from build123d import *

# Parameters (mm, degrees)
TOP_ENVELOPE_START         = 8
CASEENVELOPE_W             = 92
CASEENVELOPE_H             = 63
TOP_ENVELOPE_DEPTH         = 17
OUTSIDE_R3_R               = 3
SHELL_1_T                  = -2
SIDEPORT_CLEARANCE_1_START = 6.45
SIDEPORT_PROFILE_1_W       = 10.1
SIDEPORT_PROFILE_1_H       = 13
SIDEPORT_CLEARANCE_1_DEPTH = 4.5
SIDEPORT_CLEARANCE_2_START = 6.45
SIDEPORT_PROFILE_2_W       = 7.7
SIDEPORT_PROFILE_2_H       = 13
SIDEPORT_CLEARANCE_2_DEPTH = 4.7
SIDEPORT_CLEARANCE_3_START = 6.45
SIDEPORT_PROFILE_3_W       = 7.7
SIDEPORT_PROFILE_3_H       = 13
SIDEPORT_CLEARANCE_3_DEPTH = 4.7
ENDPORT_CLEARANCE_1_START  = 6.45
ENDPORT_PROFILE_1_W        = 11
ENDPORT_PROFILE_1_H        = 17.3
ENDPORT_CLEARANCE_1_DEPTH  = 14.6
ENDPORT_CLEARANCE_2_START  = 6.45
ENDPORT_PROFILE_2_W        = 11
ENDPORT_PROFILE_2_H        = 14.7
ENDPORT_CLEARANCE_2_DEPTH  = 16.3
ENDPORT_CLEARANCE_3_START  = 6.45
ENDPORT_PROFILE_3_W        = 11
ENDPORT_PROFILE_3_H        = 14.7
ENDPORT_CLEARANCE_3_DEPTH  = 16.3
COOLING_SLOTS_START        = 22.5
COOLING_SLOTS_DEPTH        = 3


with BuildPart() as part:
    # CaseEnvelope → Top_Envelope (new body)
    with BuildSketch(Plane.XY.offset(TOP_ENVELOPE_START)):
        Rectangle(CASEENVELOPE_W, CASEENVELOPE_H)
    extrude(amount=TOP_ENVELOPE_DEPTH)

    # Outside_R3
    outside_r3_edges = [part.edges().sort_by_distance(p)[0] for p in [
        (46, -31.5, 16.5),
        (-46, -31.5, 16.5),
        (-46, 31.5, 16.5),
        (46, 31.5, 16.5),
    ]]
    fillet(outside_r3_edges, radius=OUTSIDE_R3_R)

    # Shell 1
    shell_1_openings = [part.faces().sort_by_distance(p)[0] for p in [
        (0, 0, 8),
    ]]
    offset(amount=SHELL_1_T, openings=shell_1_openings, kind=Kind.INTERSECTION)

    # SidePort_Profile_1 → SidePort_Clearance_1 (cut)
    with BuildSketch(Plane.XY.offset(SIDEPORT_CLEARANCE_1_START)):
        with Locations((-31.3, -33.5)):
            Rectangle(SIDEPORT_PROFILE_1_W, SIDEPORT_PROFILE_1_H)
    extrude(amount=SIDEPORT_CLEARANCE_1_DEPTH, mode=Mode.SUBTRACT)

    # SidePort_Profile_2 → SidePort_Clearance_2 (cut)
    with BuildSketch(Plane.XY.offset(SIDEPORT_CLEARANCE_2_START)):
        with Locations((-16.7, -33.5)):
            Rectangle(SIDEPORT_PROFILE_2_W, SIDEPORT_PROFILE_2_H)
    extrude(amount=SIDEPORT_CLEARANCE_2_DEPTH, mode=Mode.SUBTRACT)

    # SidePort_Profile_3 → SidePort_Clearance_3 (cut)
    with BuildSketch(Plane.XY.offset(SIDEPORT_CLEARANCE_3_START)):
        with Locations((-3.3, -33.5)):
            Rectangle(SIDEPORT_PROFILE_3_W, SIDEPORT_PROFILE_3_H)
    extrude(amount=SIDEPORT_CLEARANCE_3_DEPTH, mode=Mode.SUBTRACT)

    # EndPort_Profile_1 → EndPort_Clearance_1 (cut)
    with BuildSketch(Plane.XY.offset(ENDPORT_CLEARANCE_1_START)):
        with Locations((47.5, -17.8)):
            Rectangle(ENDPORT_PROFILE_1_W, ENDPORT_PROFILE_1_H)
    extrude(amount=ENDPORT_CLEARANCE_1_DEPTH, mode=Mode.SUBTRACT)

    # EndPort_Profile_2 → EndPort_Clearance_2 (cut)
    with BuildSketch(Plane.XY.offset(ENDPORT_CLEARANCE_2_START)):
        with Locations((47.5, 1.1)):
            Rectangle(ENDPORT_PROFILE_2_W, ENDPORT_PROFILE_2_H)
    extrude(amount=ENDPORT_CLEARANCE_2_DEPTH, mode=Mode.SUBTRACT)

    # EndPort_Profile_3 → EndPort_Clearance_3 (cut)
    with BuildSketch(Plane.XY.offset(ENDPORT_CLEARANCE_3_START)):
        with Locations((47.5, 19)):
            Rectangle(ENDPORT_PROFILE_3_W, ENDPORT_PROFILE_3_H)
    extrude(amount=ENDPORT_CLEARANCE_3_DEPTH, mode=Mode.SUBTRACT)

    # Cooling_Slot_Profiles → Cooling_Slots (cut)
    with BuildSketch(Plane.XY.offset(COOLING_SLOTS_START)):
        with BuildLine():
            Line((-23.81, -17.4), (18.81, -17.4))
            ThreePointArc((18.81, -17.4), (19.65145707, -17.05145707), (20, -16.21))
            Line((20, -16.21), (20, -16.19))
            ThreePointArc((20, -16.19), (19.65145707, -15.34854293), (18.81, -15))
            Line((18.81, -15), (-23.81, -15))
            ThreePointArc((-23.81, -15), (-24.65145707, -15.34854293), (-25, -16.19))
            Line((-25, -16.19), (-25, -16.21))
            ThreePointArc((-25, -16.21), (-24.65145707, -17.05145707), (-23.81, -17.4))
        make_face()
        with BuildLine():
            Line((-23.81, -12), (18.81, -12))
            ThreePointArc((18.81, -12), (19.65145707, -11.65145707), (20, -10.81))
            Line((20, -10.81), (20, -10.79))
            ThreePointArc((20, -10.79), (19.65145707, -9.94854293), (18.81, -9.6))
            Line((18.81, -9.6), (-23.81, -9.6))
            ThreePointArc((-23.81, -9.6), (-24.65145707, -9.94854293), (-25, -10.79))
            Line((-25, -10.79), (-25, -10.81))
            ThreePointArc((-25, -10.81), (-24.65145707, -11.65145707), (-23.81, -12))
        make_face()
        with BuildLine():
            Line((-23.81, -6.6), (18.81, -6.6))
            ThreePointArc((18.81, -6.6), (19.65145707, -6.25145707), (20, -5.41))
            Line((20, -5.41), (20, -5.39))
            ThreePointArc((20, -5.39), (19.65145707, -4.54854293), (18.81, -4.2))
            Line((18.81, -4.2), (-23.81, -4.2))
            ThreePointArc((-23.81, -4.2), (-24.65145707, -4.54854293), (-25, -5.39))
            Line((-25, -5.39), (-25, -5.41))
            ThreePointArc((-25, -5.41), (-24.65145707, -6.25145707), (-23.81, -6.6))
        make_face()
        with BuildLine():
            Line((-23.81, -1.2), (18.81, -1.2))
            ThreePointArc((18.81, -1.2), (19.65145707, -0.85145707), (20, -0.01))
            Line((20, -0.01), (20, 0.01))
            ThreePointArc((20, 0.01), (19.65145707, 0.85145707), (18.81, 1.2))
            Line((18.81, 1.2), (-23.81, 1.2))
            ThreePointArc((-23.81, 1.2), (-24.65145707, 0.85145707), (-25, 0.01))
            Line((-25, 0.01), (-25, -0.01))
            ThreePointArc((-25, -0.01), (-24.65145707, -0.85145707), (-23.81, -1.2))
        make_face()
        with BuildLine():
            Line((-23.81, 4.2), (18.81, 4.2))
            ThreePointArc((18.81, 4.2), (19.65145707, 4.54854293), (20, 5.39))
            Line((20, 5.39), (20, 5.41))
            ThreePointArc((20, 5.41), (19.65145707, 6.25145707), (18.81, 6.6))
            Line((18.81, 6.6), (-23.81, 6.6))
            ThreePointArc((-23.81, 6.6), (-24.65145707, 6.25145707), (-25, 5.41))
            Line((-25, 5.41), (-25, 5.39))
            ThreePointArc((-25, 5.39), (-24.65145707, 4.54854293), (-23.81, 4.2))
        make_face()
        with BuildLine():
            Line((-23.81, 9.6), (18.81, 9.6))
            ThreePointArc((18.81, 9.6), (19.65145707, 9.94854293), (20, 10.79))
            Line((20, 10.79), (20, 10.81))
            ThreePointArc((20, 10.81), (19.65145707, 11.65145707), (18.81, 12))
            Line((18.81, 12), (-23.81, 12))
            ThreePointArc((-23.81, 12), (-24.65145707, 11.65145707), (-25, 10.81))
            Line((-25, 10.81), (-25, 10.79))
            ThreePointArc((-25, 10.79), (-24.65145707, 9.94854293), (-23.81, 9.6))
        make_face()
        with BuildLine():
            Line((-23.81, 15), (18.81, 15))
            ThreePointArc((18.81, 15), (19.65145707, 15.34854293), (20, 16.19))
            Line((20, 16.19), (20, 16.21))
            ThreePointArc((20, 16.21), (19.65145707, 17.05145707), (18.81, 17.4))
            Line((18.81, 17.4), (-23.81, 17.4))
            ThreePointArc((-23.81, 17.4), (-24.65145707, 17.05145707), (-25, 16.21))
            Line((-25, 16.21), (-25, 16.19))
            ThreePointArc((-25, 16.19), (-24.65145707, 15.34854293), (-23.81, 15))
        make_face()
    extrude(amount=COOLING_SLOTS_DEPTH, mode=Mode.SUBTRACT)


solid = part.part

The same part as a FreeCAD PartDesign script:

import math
import FreeCAD as App
import Part
import Sketcher
from FreeCAD import Vector


def edges_at(feature, points):
    """Names of the edges that pass closest to the given points."""
    edges = feature.Shape.Edges
    near = lambda p: min(range(len(edges)), key=lambda i: edges[i].distToShape(Part.Vertex(*p))[0])
    return sorted({f"Edge{near(p) + 1}" for p in points})


def faces_at(feature, points):
    """Names of the faces that lie closest to the given points."""
    faces = feature.Shape.Faces
    near = lambda p: min(range(len(faces)), key=lambda i: faces[i].distToShape(Part.Vertex(*p))[0])
    return sorted({f"Face{near(p) + 1}" for p in points})

doc = App.newDocument("Part")
body = doc.addObject("PartDesign::Body", "Body")

# Sketch on XY plane
sketch1 = doc.addObject("Sketcher::SketchObject", "Sketch")
body.addObject(sketch1)
sketch1.AttachmentSupport = (doc.XY_Plane, [""])
sketch1.MapMode = "FlatFace"
sketch1.AttachmentOffset = App.Placement(Vector(0, 0, 8), App.Rotation())
sketch1.addGeometry(Part.LineSegment(Vector(-46, 32, 0), Vector(-46, -32, 0)), False)
sketch1.addGeometry(Part.LineSegment(Vector(-46, -32, 0), Vector(46, -32, 0)), False)
sketch1.addGeometry(Part.LineSegment(Vector(46, -32, 0), Vector(46, 32, 0)), False)
sketch1.addGeometry(Part.LineSegment(Vector(46, 32, 0), Vector(-46, 32, 0)), False)
sketch1.addConstraint(Sketcher.Constraint("Coincident", 0, 2, 1, 1))
sketch1.addConstraint(Sketcher.Constraint("Coincident", 1, 2, 2, 1))
sketch1.addConstraint(Sketcher.Constraint("Coincident", 2, 2, 3, 1))
sketch1.addConstraint(Sketcher.Constraint("Coincident", 3, 2, 0, 1))
sketch1.addConstraint(Sketcher.Constraint("Vertical", 0))
sketch1.addConstraint(Sketcher.Constraint("Horizontal", 1))
sketch1.addConstraint(Sketcher.Constraint("Vertical", 2))
sketch1.addConstraint(Sketcher.Constraint("Horizontal", 3))
sketch1.addConstraint(Sketcher.Constraint("Symmetric", 0, 2, 2, 2, -1, 1))
sketch1.addConstraint(Sketcher.Constraint("DistanceX", 1, 1, 1, 2, 92.0))
sketch1.addConstraint(Sketcher.Constraint("DistanceY", 0, 2, 0, 1, 63.0))
pad1 = doc.addObject("PartDesign::Pad", "Pad")
body.addObject(pad1)
pad1.Profile = sketch1
pad1.Length = 17
doc.recompute()

fillet = doc.addObject("PartDesign::Fillet", "Fillet")
body.addObject(fillet)
fillet.Base = (pad1, edges_at(pad1, [
    (46, -31.5, 16.5),
    (-46, -31.5, 16.5),
    (-46, 31.5, 16.5),
    (46, 31.5, 16.5),
]))
fillet.Radius = 3
doc.recompute()

thickness = doc.addObject("PartDesign::Thickness", "Thickness")
body.addObject(thickness)
thickness.Base = (fillet, faces_at(fillet, [(0, 0, 8)]))
thickness.Value = 2
thickness.Reversed = True
thickness.Join = "Intersection"

# Sketch on XY plane
sketch2 = doc.addObject("Sketcher::SketchObject", "Sketch001")
body.addObject(sketch2)
sketch2.AttachmentSupport = (doc.XY_Plane, [""])
sketch2.MapMode = "FlatFace"
sketch2.AttachmentOffset = App.Placement(Vector(0, 0, 6.45), App.Rotation())
sketch2.addGeometry(Part.LineSegment(Vector(-36, -27, 0), Vector(-36, -40, 0)), False)
sketch2.addGeometry(Part.LineSegment(Vector(-36, -40, 0), Vector(-26, -40, 0)), False)
sketch2.addGeometry(Part.LineSegment(Vector(-26, -40, 0), Vector(-26, -27, 0)), False)
sketch2.addGeometry(Part.LineSegment(Vector(-26, -27, 0), Vector(-36, -27, 0)), False)
sketch2.addConstraint(Sketcher.Constraint("Coincident", 0, 2, 1, 1))
sketch2.addConstraint(Sketcher.Constraint("Coincident", 1, 2, 2, 1))
sketch2.addConstraint(Sketcher.Constraint("Coincident", 2, 2, 3, 1))
sketch2.addConstraint(Sketcher.Constraint("Coincident", 3, 2, 0, 1))
sketch2.addConstraint(Sketcher.Constraint("Vertical", 0))
sketch2.addConstraint(Sketcher.Constraint("Horizontal", 1))
sketch2.addConstraint(Sketcher.Constraint("Vertical", 2))
sketch2.addConstraint(Sketcher.Constraint("Horizontal", 3))
sketch2.addConstraint(Sketcher.Constraint("DistanceY", 0, 2, 0, 1, 13.0))
sketch2.addConstraint(Sketcher.Constraint("DistanceX", 1, 1, 1, 2, 10.1))
sketch2.addConstraint(Sketcher.Constraint("DistanceY", 0, 2, -1, 1, 40.0))
sketch2.addConstraint(Sketcher.Constraint("DistanceX", 0, 2, -1, 1, 36.35))
pocket1 = doc.addObject("PartDesign::Pocket", "Pocket")
body.addObject(pocket1)
pocket1.Profile = sketch2
pocket1.Length = 4.5
pocket1.Reversed = True

# Sketch on XY plane
sketch3 = doc.addObject("Sketcher::SketchObject", "Sketch002")
body.addObject(sketch3)
sketch3.AttachmentSupport = (doc.XY_Plane, [""])
sketch3.MapMode = "FlatFace"
sketch3.AttachmentOffset = App.Placement(Vector(0, 0, 6.45), App.Rotation())
sketch3.addGeometry(Part.LineSegment(Vector(-21, -27, 0), Vector(-21, -40, 0)), False)
sketch3.addGeometry(Part.LineSegment(Vector(-21, -40, 0), Vector(-13, -40, 0)), False)
sketch3.addGeometry(Part.LineSegment(Vector(-13, -40, 0), Vector(-13, -27, 0)), False)
sketch3.addGeometry(Part.LineSegment(Vector(-13, -27, 0), Vector(-21, -27, 0)), False)
sketch3.addConstraint(Sketcher.Constraint("Coincident", 0, 2, 1, 1))
sketch3.addConstraint(Sketcher.Constraint("Coincident", 1, 2, 2, 1))
sketch3.addConstraint(Sketcher.Constraint("Coincident", 2, 2, 3, 1))
sketch3.addConstraint(Sketcher.Constraint("Coincident", 3, 2, 0, 1))
sketch3.addConstraint(Sketcher.Constraint("Vertical", 0))
sketch3.addConstraint(Sketcher.Constraint("Horizontal", 1))
sketch3.addConstraint(Sketcher.Constraint("Vertical", 2))
sketch3.addConstraint(Sketcher.Constraint("Horizontal", 3))
sketch3.addConstraint(Sketcher.Constraint("DistanceY", 0, 2, 0, 1, 13.0))
sketch3.addConstraint(Sketcher.Constraint("DistanceX", 1, 1, 1, 2, 7.7))
sketch3.addConstraint(Sketcher.Constraint("DistanceY", 0, 2, -1, 1, 40.0))
sketch3.addConstraint(Sketcher.Constraint("DistanceX", 0, 2, -1, 1, 20.55))
pocket2 = doc.addObject("PartDesign::Pocket", "Pocket001")
body.addObject(pocket2)
pocket2.Profile = sketch3
pocket2.Length = 4.7
pocket2.Reversed = True

# Sketch on XY plane
sketch4 = doc.addObject("Sketcher::SketchObject", "Sketch003")
body.addObject(sketch4)
sketch4.AttachmentSupport = (doc.XY_Plane, [""])
sketch4.MapMode = "FlatFace"
sketch4.AttachmentOffset = App.Placement(Vector(0, 0, 6.45), App.Rotation())
sketch4.addGeometry(Part.LineSegment(Vector(-7, -27, 0), Vector(-7, -40, 0)), False)
sketch4.addGeometry(Part.LineSegment(Vector(-7, -40, 0), Vector(1, -40, 0)), False)
sketch4.addGeometry(Part.LineSegment(Vector(1, -40, 0), Vector(1, -27, 0)), False)
sketch4.addGeometry(Part.LineSegment(Vector(1, -27, 0), Vector(-7, -27, 0)), False)
sketch4.addConstraint(Sketcher.Constraint("Coincident", 0, 2, 1, 1))
sketch4.addConstraint(Sketcher.Constraint("Coincident", 1, 2, 2, 1))
sketch4.addConstraint(Sketcher.Constraint("Coincident", 2, 2, 3, 1))
sketch4.addConstraint(Sketcher.Constraint("Coincident", 3, 2, 0, 1))
sketch4.addConstraint(Sketcher.Constraint("Vertical", 0))
sketch4.addConstraint(Sketcher.Constraint("Horizontal", 1))
sketch4.addConstraint(Sketcher.Constraint("Vertical", 2))
sketch4.addConstraint(Sketcher.Constraint("Horizontal", 3))
sketch4.addConstraint(Sketcher.Constraint("DistanceY", 0, 2, 0, 1, 13.0))
sketch4.addConstraint(Sketcher.Constraint("DistanceX", 1, 1, 1, 2, 7.7))
sketch4.addConstraint(Sketcher.Constraint("DistanceY", 0, 2, -1, 1, 40.0))
sketch4.addConstraint(Sketcher.Constraint("DistanceX", 0, 2, -1, 1, 7.15))
pocket3 = doc.addObject("PartDesign::Pocket", "Pocket002")
body.addObject(pocket3)
pocket3.Profile = sketch4
pocket3.Length = 4.7
pocket3.Reversed = True

# Sketch on XY plane
sketch5 = doc.addObject("Sketcher::SketchObject", "Sketch004")
body.addObject(sketch5)
sketch5.AttachmentSupport = (doc.XY_Plane, [""])
sketch5.MapMode = "FlatFace"
sketch5.AttachmentOffset = App.Placement(Vector(0, 0, 6.45), App.Rotation())
sketch5.addGeometry(Part.LineSegment(Vector(42, -9, 0), Vector(42, -26, 0)), False)
sketch5.addGeometry(Part.LineSegment(Vector(42, -26, 0), Vector(53, -26, 0)), False)
sketch5.addGeometry(Part.LineSegment(Vector(53, -26, 0), Vector(53, -9, 0)), False)
sketch5.addGeometry(Part.LineSegment(Vector(53, -9, 0), Vector(42, -9, 0)), False)
sketch5.addConstraint(Sketcher.Constraint("Coincident", 0, 2, 1, 1))
sketch5.addConstraint(Sketcher.Constraint("Coincident", 1, 2, 2, 1))
sketch5.addConstraint(Sketcher.Constraint("Coincident", 2, 2, 3, 1))
sketch5.addConstraint(Sketcher.Constraint("Coincident", 3, 2, 0, 1))
sketch5.addConstraint(Sketcher.Constraint("Vertical", 0))
sketch5.addConstraint(Sketcher.Constraint("Horizontal", 1))
sketch5.addConstraint(Sketcher.Constraint("Vertical", 2))
sketch5.addConstraint(Sketcher.Constraint("Horizontal", 3))
sketch5.addConstraint(Sketcher.Constraint("DistanceX", 1, 1, 1, 2, 11.0))
sketch5.addConstraint(Sketcher.Constraint("DistanceY", 0, 2, 0, 1, 17.3))
sketch5.addConstraint(Sketcher.Constraint("DistanceX", -1, 1, 0, 2, 42.0))
sketch5.addConstraint(Sketcher.Constraint("DistanceY", 0, 2, -1, 1, 26.45))
pocket4 = doc.addObject("PartDesign::Pocket", "Pocket003")
body.addObject(pocket4)
pocket4.Profile = sketch5
pocket4.Length = 14.6
pocket4.Reversed = True

# Sketch on XY plane
sketch6 = doc.addObject("Sketcher::SketchObject", "Sketch005")
body.addObject(sketch6)
sketch6.AttachmentSupport = (doc.XY_Plane, [""])
sketch6.MapMode = "FlatFace"
sketch6.AttachmentOffset = App.Placement(Vector(0, 0, 6.45), App.Rotation())
sketch6.addGeometry(Part.LineSegment(Vector(42, 8, 0), Vector(42, -6, 0)), False)
sketch6.addGeometry(Part.LineSegment(Vector(42, -6, 0), Vector(53, -6, 0)), False)
sketch6.addGeometry(Part.LineSegment(Vector(53, -6, 0), Vector(53, 8, 0)), False)
sketch6.addGeometry(Part.LineSegment(Vector(53, 8, 0), Vector(42, 8, 0)), False)
sketch6.addConstraint(Sketcher.Constraint("Coincident", 0, 2, 1, 1))
sketch6.addConstraint(Sketcher.Constraint("Coincident", 1, 2, 2, 1))
sketch6.addConstraint(Sketcher.Constraint("Coincident", 2, 2, 3, 1))
sketch6.addConstraint(Sketcher.Constraint("Coincident", 3, 2, 0, 1))
sketch6.addConstraint(Sketcher.Constraint("Vertical", 0))
sketch6.addConstraint(Sketcher.Constraint("Horizontal", 1))
sketch6.addConstraint(Sketcher.Constraint("Vertical", 2))
sketch6.addConstraint(Sketcher.Constraint("Horizontal", 3))
sketch6.addConstraint(Sketcher.Constraint("DistanceX", 1, 1, 1, 2, 11.0))
sketch6.addConstraint(Sketcher.Constraint("DistanceY", 0, 2, 0, 1, 14.7))
sketch6.addConstraint(Sketcher.Constraint("DistanceX", -1, 1, 0, 2, 42.0))
sketch6.addConstraint(Sketcher.Constraint("DistanceY", 0, 2, -1, 1, 6.25))
pocket5 = doc.addObject("PartDesign::Pocket", "Pocket004")
body.addObject(pocket5)
pocket5.Profile = sketch6
pocket5.Length = 16.3
pocket5.Reversed = True

# Sketch on XY plane
sketch7 = doc.addObject("Sketcher::SketchObject", "Sketch006")
body.addObject(sketch7)
sketch7.AttachmentSupport = (doc.XY_Plane, [""])
sketch7.MapMode = "FlatFace"
sketch7.AttachmentOffset = App.Placement(Vector(0, 0, 6.45), App.Rotation())
sketch7.addGeometry(Part.LineSegment(Vector(42, 26, 0), Vector(42, 12, 0)), False)
sketch7.addGeometry(Part.LineSegment(Vector(42, 12, 0), Vector(53, 12, 0)), False)
sketch7.addGeometry(Part.LineSegment(Vector(53, 12, 0), Vector(53, 26, 0)), False)
sketch7.addGeometry(Part.LineSegment(Vector(53, 26, 0), Vector(42, 26, 0)), False)
sketch7.addConstraint(Sketcher.Constraint("Coincident", 0, 2, 1, 1))
sketch7.addConstraint(Sketcher.Constraint("Coincident", 1, 2, 2, 1))
sketch7.addConstraint(Sketcher.Constraint("Coincident", 2, 2, 3, 1))
sketch7.addConstraint(Sketcher.Constraint("Coincident", 3, 2, 0, 1))
sketch7.addConstraint(Sketcher.Constraint("Vertical", 0))
sketch7.addConstraint(Sketcher.Constraint("Horizontal", 1))
sketch7.addConstraint(Sketcher.Constraint("Vertical", 2))
sketch7.addConstraint(Sketcher.Constraint("Horizontal", 3))
sketch7.addConstraint(Sketcher.Constraint("DistanceX", 1, 1, 1, 2, 11.0))
sketch7.addConstraint(Sketcher.Constraint("DistanceY", 0, 2, 0, 1, 14.7))
sketch7.addConstraint(Sketcher.Constraint("DistanceX", -1, 1, 0, 2, 42.0))
sketch7.addConstraint(Sketcher.Constraint("DistanceY", -1, 1, 0, 2, 11.65))
pocket6 = doc.addObject("PartDesign::Pocket", "Pocket005")
body.addObject(pocket6)
pocket6.Profile = sketch7
pocket6.Length = 16.3
pocket6.Reversed = True

# Sketch on XY plane
sketch8 = doc.addObject("Sketcher::SketchObject", "Sketch007")
body.addObject(sketch8)
sketch8.AttachmentSupport = (doc.XY_Plane, [""])
sketch8.MapMode = "FlatFace"
sketch8.AttachmentOffset = App.Placement(Vector(0, 0, 22.5), App.Rotation())
sketch8.addGeometry(Part.LineSegment(Vector(-23.81, -17.4, 0), Vector(18.81, -17.4, 0)), False)
sketch8.addGeometry(Part.ArcOfCircle(Part.Circle(Vector(18.81, -16.21, 0), Vector(0, 0, 1), 1.19), math.radians(-90), math.radians(0)), False)
sketch8.addGeometry(Part.LineSegment(Vector(20, -16.21, 0), Vector(20, -16.19, 0)), False)
sketch8.addGeometry(Part.ArcOfCircle(Part.Circle(Vector(18.81, -16.19, 0), Vector(0, 0, 1), 1.19), math.radians(0), math.radians(90)), False)
sketch8.addGeometry(Part.LineSegment(Vector(18.81, -15, 0), Vector(-23.81, -15, 0)), False)
sketch8.addGeometry(Part.ArcOfCircle(Part.Circle(Vector(-23.81, -16.19, 0), Vector(0, 0, 1), 1.19), math.radians(90), math.radians(180)), False)
sketch8.addGeometry(Part.LineSegment(Vector(-25, -16.19, 0), Vector(-25, -16.21, 0)), False)
sketch8.addGeometry(Part.ArcOfCircle(Part.Circle(Vector(-23.81, -16.21, 0), Vector(0, 0, 1), 1.19), math.radians(180), math.radians(270)), False)
sketch8.addGeometry(Part.LineSegment(Vector(-23.81, -12, 0), Vector(18.81, -12, 0)), False)
sketch8.addGeometry(Part.ArcOfCircle(Part.Circle(Vector(18.81, -10.81, 0), Vector(0, 0, 1), 1.19), math.radians(-90), math.radians(0)), False)
sketch8.addGeometry(Part.LineSegment(Vector(20, -10.81, 0), Vector(20, -10.79, 0)), False)
sketch8.addGeometry(Part.ArcOfCircle(Part.Circle(Vector(18.81, -10.79, 0), Vector(0, 0, 1), 1.19), math.radians(0), math.radians(90)), False)
sketch8.addGeometry(Part.LineSegment(Vector(18.81, -9.6, 0), Vector(-23.81, -9.6, 0)), False)
sketch8.addGeometry(Part.ArcOfCircle(Part.Circle(Vector(-23.81, -10.79, 0), Vector(0, 0, 1), 1.19), math.radians(90), math.radians(180)), False)
sketch8.addGeometry(Part.LineSegment(Vector(-25, -10.79, 0), Vector(-25, -10.81, 0)), False)
sketch8.addGeometry(Part.ArcOfCircle(Part.Circle(Vector(-23.81, -10.81, 0), Vector(0, 0, 1), 1.19), math.radians(180), math.radians(270)), False)
sketch8.addGeometry(Part.LineSegment(Vector(-23.81, -6.6, 0), Vector(18.81, -6.6, 0)), False)
sketch8.addGeometry(Part.ArcOfCircle(Part.Circle(Vector(18.81, -5.41, 0), Vector(0, 0, 1), 1.19), math.radians(-90), math.radians(0)), False)
sketch8.addGeometry(Part.LineSegment(Vector(20, -5.41, 0), Vector(20, -5.39, 0)), False)
sketch8.addGeometry(Part.ArcOfCircle(Part.Circle(Vector(18.81, -5.39, 0), Vector(0, 0, 1), 1.19), math.radians(0), math.radians(90)), False)
sketch8.addGeometry(Part.LineSegment(Vector(18.81, -4.2, 0), Vector(-23.81, -4.2, 0)), False)
sketch8.addGeometry(Part.ArcOfCircle(Part.Circle(Vector(-23.81, -5.39, 0), Vector(0, 0, 1), 1.19), math.radians(90), math.radians(180)), False)
sketch8.addGeometry(Part.LineSegment(Vector(-25, -5.39, 0), Vector(-25, -5.41, 0)), False)
sketch8.addGeometry(Part.ArcOfCircle(Part.Circle(Vector(-23.81, -5.41, 0), Vector(0, 0, 1), 1.19), math.radians(180), math.radians(270)), False)
sketch8.addGeometry(Part.LineSegment(Vector(-23.81, -1.2, 0), Vector(18.81, -1.2, 0)), False)
sketch8.addGeometry(Part.ArcOfCircle(Part.Circle(Vector(18.81, -0.01, 0), Vector(0, 0, 1), 1.19), math.radians(-90), math.radians(0)), False)
sketch8.addGeometry(Part.LineSegment(Vector(20, -0.01, 0), Vector(20, 0.01, 0)), False)
sketch8.addGeometry(Part.ArcOfCircle(Part.Circle(Vector(18.81, 0.01, 0), Vector(0, 0, 1), 1.19), math.radians(0), math.radians(90)), False)
sketch8.addGeometry(Part.LineSegment(Vector(18.81, 1.2, 0), Vector(-23.81, 1.2, 0)), False)
sketch8.addGeometry(Part.ArcOfCircle(Part.Circle(Vector(-23.81, 0.01, 0), Vector(0, 0, 1), 1.19), math.radians(90), math.radians(180)), False)
sketch8.addGeometry(Part.LineSegment(Vector(-25, 0.01, 0), Vector(-25, -0.01, 0)), False)
sketch8.addGeometry(Part.ArcOfCircle(Part.Circle(Vector(-23.81, -0.01, 0), Vector(0, 0, 1), 1.19), math.radians(180), math.radians(270)), False)
sketch8.addGeometry(Part.LineSegment(Vector(-23.81, 4.2, 0), Vector(18.81, 4.2, 0)), False)
sketch8.addGeometry(Part.ArcOfCircle(Part.Circle(Vector(18.81, 5.39, 0), Vector(0, 0, 1), 1.19), math.radians(-90), math.radians(0)), False)
sketch8.addGeometry(Part.LineSegment(Vector(20, 5.39, 0), Vector(20, 5.41, 0)), False)
sketch8.addGeometry(Part.ArcOfCircle(Part.Circle(Vector(18.81, 5.41, 0), Vector(0, 0, 1), 1.19), math.radians(0), math.radians(90)), False)
sketch8.addGeometry(Part.LineSegment(Vector(18.81, 6.6, 0), Vector(-23.81, 6.6, 0)), False)
sketch8.addGeometry(Part.ArcOfCircle(Part.Circle(Vector(-23.81, 5.41, 0), Vector(0, 0, 1), 1.19), math.radians(90), math.radians(180)), False)
sketch8.addGeometry(Part.LineSegment(Vector(-25, 5.41, 0), Vector(-25, 5.39, 0)), False)
sketch8.addGeometry(Part.ArcOfCircle(Part.Circle(Vector(-23.81, 5.39, 0), Vector(0, 0, 1), 1.19), math.radians(180), math.radians(270)), False)
sketch8.addGeometry(Part.LineSegment(Vector(-23.81, 9.6, 0), Vector(18.81, 9.6, 0)), False)
sketch8.addGeometry(Part.ArcOfCircle(Part.Circle(Vector(18.81, 10.79, 0), Vector(0, 0, 1), 1.19), math.radians(-90), math.radians(0)), False)
sketch8.addGeometry(Part.LineSegment(Vector(20, 10.79, 0), Vector(20, 10.81, 0)), False)
sketch8.addGeometry(Part.ArcOfCircle(Part.Circle(Vector(18.81, 10.81, 0), Vector(0, 0, 1), 1.19), math.radians(0), math.radians(90)), False)
sketch8.addGeometry(Part.LineSegment(Vector(18.81, 12, 0), Vector(-23.81, 12, 0)), False)
sketch8.addGeometry(Part.ArcOfCircle(Part.Circle(Vector(-23.81, 10.81, 0), Vector(0, 0, 1), 1.19), math.radians(90), math.radians(180)), False)
sketch8.addGeometry(Part.LineSegment(Vector(-25, 10.81, 0), Vector(-25, 10.79, 0)), False)
sketch8.addGeometry(Part.ArcOfCircle(Part.Circle(Vector(-23.81, 10.79, 0), Vector(0, 0, 1), 1.19), math.radians(180), math.radians(270)), False)
sketch8.addGeometry(Part.LineSegment(Vector(-23.81, 15, 0), Vector(18.81, 15, 0)), False)
sketch8.addGeometry(Part.ArcOfCircle(Part.Circle(Vector(18.81, 16.19, 0), Vector(0, 0, 1), 1.19), math.radians(-90), math.radians(0)), False)
sketch8.addGeometry(Part.LineSegment(Vector(20, 16.19, 0), Vector(20, 16.21, 0)), False)
sketch8.addGeometry(Part.ArcOfCircle(Part.Circle(Vector(18.81, 16.21, 0), Vector(0, 0, 1), 1.19), math.radians(0), math.radians(90)), False)
sketch8.addGeometry(Part.LineSegment(Vector(18.81, 17.4, 0), Vector(-23.81, 17.4, 0)), False)
sketch8.addGeometry(Part.ArcOfCircle(Part.Circle(Vector(-23.81, 16.21, 0), Vector(0, 0, 1), 1.19), math.radians(90), math.radians(180)), False)
sketch8.addGeometry(Part.LineSegment(Vector(-25, 16.21, 0), Vector(-25, 16.19, 0)), False)
sketch8.addGeometry(Part.ArcOfCircle(Part.Circle(Vector(-23.81, 16.19, 0), Vector(0, 0, 1), 1.19), math.radians(180), math.radians(270)), False)
sketch8.addConstraint(Sketcher.Constraint("Tangent", 0, 2, 1, 1))
sketch8.addConstraint(Sketcher.Constraint("Tangent", 1, 2, 2, 1))
sketch8.addConstraint(Sketcher.Constraint("Tangent", 2, 2, 3, 1))
sketch8.addConstraint(Sketcher.Constraint("Tangent", 3, 2, 4, 1))
sketch8.addConstraint(Sketcher.Constraint("Tangent", 4, 2, 5, 1))
sketch8.addConstraint(Sketcher.Constraint("Tangent", 5, 2, 6, 1))
sketch8.addConstraint(Sketcher.Constraint("Tangent", 6, 2, 7, 1))
sketch8.addConstraint(Sketcher.Constraint("Tangent", 7, 2, 0, 1))
sketch8.addConstraint(Sketcher.Constraint("Tangent", 8, 2, 9, 1))
sketch8.addConstraint(Sketcher.Constraint("Tangent", 9, 2, 10, 1))
sketch8.addConstraint(Sketcher.Constraint("Tangent", 10, 2, 11, 1))
sketch8.addConstraint(Sketcher.Constraint("Tangent", 11, 2, 12, 1))
sketch8.addConstraint(Sketcher.Constraint("Tangent", 12, 2, 13, 1))
sketch8.addConstraint(Sketcher.Constraint("Tangent", 13, 2, 14, 1))
sketch8.addConstraint(Sketcher.Constraint("Tangent", 14, 2, 15, 1))
sketch8.addConstraint(Sketcher.Constraint("Tangent", 15, 2, 8, 1))
sketch8.addConstraint(Sketcher.Constraint("Tangent", 16, 2, 17, 1))
sketch8.addConstraint(Sketcher.Constraint("Tangent", 17, 2, 18, 1))
sketch8.addConstraint(Sketcher.Constraint("Tangent", 18, 2, 19, 1))
sketch8.addConstraint(Sketcher.Constraint("Tangent", 19, 2, 20, 1))
sketch8.addConstraint(Sketcher.Constraint("Tangent", 20, 2, 21, 1))
sketch8.addConstraint(Sketcher.Constraint("Tangent", 21, 2, 22, 1))
sketch8.addConstraint(Sketcher.Constraint("Tangent", 22, 2, 23, 1))
sketch8.addConstraint(Sketcher.Constraint("Tangent", 23, 2, 16, 1))
sketch8.addConstraint(Sketcher.Constraint("Tangent", 24, 2, 25, 1))
sketch8.addConstraint(Sketcher.Constraint("Tangent", 25, 2, 26, 1))
sketch8.addConstraint(Sketcher.Constraint("Tangent", 26, 2, 27, 1))
sketch8.addConstraint(Sketcher.Constraint("Tangent", 27, 2, 28, 1))
sketch8.addConstraint(Sketcher.Constraint("Tangent", 28, 2, 29, 1))
sketch8.addConstraint(Sketcher.Constraint("Tangent", 29, 2, 30, 1))
sketch8.addConstraint(Sketcher.Constraint("Tangent", 30, 2, 31, 1))
sketch8.addConstraint(Sketcher.Constraint("Tangent", 31, 2, 24, 1))
sketch8.addConstraint(Sketcher.Constraint("Tangent", 32, 2, 33, 1))
sketch8.addConstraint(Sketcher.Constraint("Tangent", 33, 2, 34, 1))
sketch8.addConstraint(Sketcher.Constraint("Tangent", 34, 2, 35, 1))
sketch8.addConstraint(Sketcher.Constraint("Tangent", 35, 2, 36, 1))
sketch8.addConstraint(Sketcher.Constraint("Tangent", 36, 2, 37, 1))
sketch8.addConstraint(Sketcher.Constraint("Tangent", 37, 2, 38, 1))
sketch8.addConstraint(Sketcher.Constraint("Tangent", 38, 2, 39, 1))
sketch8.addConstraint(Sketcher.Constraint("Tangent", 39, 2, 32, 1))
sketch8.addConstraint(Sketcher.Constraint("Tangent", 40, 2, 41, 1))
sketch8.addConstraint(Sketcher.Constraint("Tangent", 41, 2, 42, 1))
sketch8.addConstraint(Sketcher.Constraint("Tangent", 42, 2, 43, 1))
sketch8.addConstraint(Sketcher.Constraint("Tangent", 43, 2, 44, 1))
sketch8.addConstraint(Sketcher.Constraint("Tangent", 44, 2, 45, 1))
sketch8.addConstraint(Sketcher.Constraint("Tangent", 45, 2, 46, 1))
sketch8.addConstraint(Sketcher.Constraint("Tangent", 46, 2, 47, 1))
sketch8.addConstraint(Sketcher.Constraint("Tangent", 47, 2, 40, 1))
sketch8.addConstraint(Sketcher.Constraint("Tangent", 48, 2, 49, 1))
sketch8.addConstraint(Sketcher.Constraint("Tangent", 49, 2, 50, 1))
sketch8.addConstraint(Sketcher.Constraint("Tangent", 50, 2, 51, 1))
sketch8.addConstraint(Sketcher.Constraint("Tangent", 51, 2, 52, 1))
sketch8.addConstraint(Sketcher.Constraint("Tangent", 52, 2, 53, 1))
sketch8.addConstraint(Sketcher.Constraint("Tangent", 53, 2, 54, 1))
sketch8.addConstraint(Sketcher.Constraint("Tangent", 54, 2, 55, 1))
sketch8.addConstraint(Sketcher.Constraint("Tangent", 55, 2, 48, 1))
sketch8.addConstraint(Sketcher.Constraint("Horizontal", 0))
sketch8.addConstraint(Sketcher.Constraint("Vertical", 2))
sketch8.addConstraint(Sketcher.Constraint("Horizontal", 4))
sketch8.addConstraint(Sketcher.Constraint("Vertical", 6))
sketch8.addConstraint(Sketcher.Constraint("Horizontal", 8))
sketch8.addConstraint(Sketcher.Constraint("Vertical", 10))
sketch8.addConstraint(Sketcher.Constraint("Horizontal", 12))
sketch8.addConstraint(Sketcher.Constraint("Vertical", 14))
sketch8.addConstraint(Sketcher.Constraint("Horizontal", 16))
sketch8.addConstraint(Sketcher.Constraint("Vertical", 18))
sketch8.addConstraint(Sketcher.Constraint("Horizontal", 20))
sketch8.addConstraint(Sketcher.Constraint("Vertical", 22))
sketch8.addConstraint(Sketcher.Constraint("Horizontal", 24))
sketch8.addConstraint(Sketcher.Constraint("Vertical", 26))
sketch8.addConstraint(Sketcher.Constraint("Horizontal", 28))
sketch8.addConstraint(Sketcher.Constraint("Vertical", 30))
sketch8.addConstraint(Sketcher.Constraint("Horizontal", 32))
sketch8.addConstraint(Sketcher.Constraint("Vertical", 34))
sketch8.addConstraint(Sketcher.Constraint("Horizontal", 36))
sketch8.addConstraint(Sketcher.Constraint("Vertical", 38))
sketch8.addConstraint(Sketcher.Constraint("Horizontal", 40))
sketch8.addConstraint(Sketcher.Constraint("Vertical", 42))
sketch8.addConstraint(Sketcher.Constraint("Horizontal", 44))
sketch8.addConstraint(Sketcher.Constraint("Vertical", 46))
sketch8.addConstraint(Sketcher.Constraint("Horizontal", 48))
sketch8.addConstraint(Sketcher.Constraint("Vertical", 50))
sketch8.addConstraint(Sketcher.Constraint("Horizontal", 52))
sketch8.addConstraint(Sketcher.Constraint("Vertical", 54))
sketch8.addConstraint(Sketcher.Constraint("Equal", 1, 3))
sketch8.addConstraint(Sketcher.Constraint("Equal", 3, 5))
sketch8.addConstraint(Sketcher.Constraint("Equal", 5, 7))
sketch8.addConstraint(Sketcher.Constraint("Equal", 7, 9))
sketch8.addConstraint(Sketcher.Constraint("Equal", 9, 11))
sketch8.addConstraint(Sketcher.Constraint("Equal", 11, 13))
sketch8.addConstraint(Sketcher.Constraint("Equal", 13, 15))
sketch8.addConstraint(Sketcher.Constraint("Equal", 15, 17))
sketch8.addConstraint(Sketcher.Constraint("Equal", 17, 19))
sketch8.addConstraint(Sketcher.Constraint("Equal", 19, 21))
sketch8.addConstraint(Sketcher.Constraint("Equal", 21, 23))
sketch8.addConstraint(Sketcher.Constraint("Equal", 23, 25))
sketch8.addConstraint(Sketcher.Constraint("Equal", 25, 27))
sketch8.addConstraint(Sketcher.Constraint("Equal", 27, 29))
sketch8.addConstraint(Sketcher.Constraint("Equal", 29, 31))
sketch8.addConstraint(Sketcher.Constraint("Equal", 31, 33))
sketch8.addConstraint(Sketcher.Constraint("Equal", 33, 35))
sketch8.addConstraint(Sketcher.Constraint("Equal", 35, 37))
sketch8.addConstraint(Sketcher.Constraint("Equal", 37, 39))
sketch8.addConstraint(Sketcher.Constraint("Equal", 39, 41))
sketch8.addConstraint(Sketcher.Constraint("Equal", 41, 43))
sketch8.addConstraint(Sketcher.Constraint("Equal", 43, 45))
sketch8.addConstraint(Sketcher.Constraint("Equal", 45, 47))
sketch8.addConstraint(Sketcher.Constraint("Equal", 47, 49))
sketch8.addConstraint(Sketcher.Constraint("Equal", 49, 51))
sketch8.addConstraint(Sketcher.Constraint("Equal", 51, 53))
sketch8.addConstraint(Sketcher.Constraint("Equal", 53, 55))
sketch8.addConstraint(Sketcher.Constraint("Symmetric", 19, 3, 33, 3, -1))
sketch8.addConstraint(Sketcher.Constraint("Symmetric", 23, 3, 37, 3, -1))
sketch8.addConstraint(Sketcher.Constraint("Symmetric", 11, 3, 41, 3, -1))
sketch8.addConstraint(Sketcher.Constraint("Symmetric", 15, 3, 45, 3, -1))
sketch8.addConstraint(Sketcher.Constraint("Symmetric", 3, 3, 49, 3, -1))
sketch8.addConstraint(Sketcher.Constraint("Symmetric", 7, 3, 53, 3, -1))
sketch8.addConstraint(Sketcher.Constraint("Vertical", 3, 3, 9, 3))
sketch8.addConstraint(Sketcher.Constraint("Vertical", 7, 3, 13, 3))
sketch8.addConstraint(Sketcher.Constraint("Vertical", 11, 3, 17, 3))
sketch8.addConstraint(Sketcher.Constraint("Vertical", 15, 3, 21, 3))
sketch8.addConstraint(Sketcher.Constraint("Vertical", 19, 3, 25, 3))
sketch8.addConstraint(Sketcher.Constraint("Vertical", 23, 3, 29, 3))
sketch8.addConstraint(Sketcher.Constraint("Equal", 6, 10))
sketch8.addConstraint(Sketcher.Constraint("Equal", 14, 18))
sketch8.addConstraint(Sketcher.Constraint("Equal", 22, 26))
sketch8.addConstraint(Sketcher.Constraint("Radius", 1, 1.19))
sketch8.addConstraint(Sketcher.Constraint("DistanceX", -1, 1, 1, 2, 20.0))
sketch8.addConstraint(Sketcher.Constraint("DistanceY", 3, 2, -1, 1, 15.0))
sketch8.addConstraint(Sketcher.Constraint("DistanceX", 5, 2, -1, 1, 25.0))
sketch8.addConstraint(Sketcher.Constraint("DistanceY", 8, 2, -1, 1, 12.0))
sketch8.addConstraint(Sketcher.Constraint("DistanceY", 2, 1, 2, 2, 0.02))
sketch8.addConstraint(Sketcher.Constraint("DistanceY", 16, 2, -1, 1, 6.6))
sketch8.addConstraint(Sketcher.Constraint("DistanceY", 24, 2, -1, 1, 1.2))
pocket7 = doc.addObject("PartDesign::Pocket", "Pocket006")
body.addObject(pocket7)
pocket7.Profile = sketch8
pocket7.Length = 3
pocket7.Reversed = True

doc.recompute()
